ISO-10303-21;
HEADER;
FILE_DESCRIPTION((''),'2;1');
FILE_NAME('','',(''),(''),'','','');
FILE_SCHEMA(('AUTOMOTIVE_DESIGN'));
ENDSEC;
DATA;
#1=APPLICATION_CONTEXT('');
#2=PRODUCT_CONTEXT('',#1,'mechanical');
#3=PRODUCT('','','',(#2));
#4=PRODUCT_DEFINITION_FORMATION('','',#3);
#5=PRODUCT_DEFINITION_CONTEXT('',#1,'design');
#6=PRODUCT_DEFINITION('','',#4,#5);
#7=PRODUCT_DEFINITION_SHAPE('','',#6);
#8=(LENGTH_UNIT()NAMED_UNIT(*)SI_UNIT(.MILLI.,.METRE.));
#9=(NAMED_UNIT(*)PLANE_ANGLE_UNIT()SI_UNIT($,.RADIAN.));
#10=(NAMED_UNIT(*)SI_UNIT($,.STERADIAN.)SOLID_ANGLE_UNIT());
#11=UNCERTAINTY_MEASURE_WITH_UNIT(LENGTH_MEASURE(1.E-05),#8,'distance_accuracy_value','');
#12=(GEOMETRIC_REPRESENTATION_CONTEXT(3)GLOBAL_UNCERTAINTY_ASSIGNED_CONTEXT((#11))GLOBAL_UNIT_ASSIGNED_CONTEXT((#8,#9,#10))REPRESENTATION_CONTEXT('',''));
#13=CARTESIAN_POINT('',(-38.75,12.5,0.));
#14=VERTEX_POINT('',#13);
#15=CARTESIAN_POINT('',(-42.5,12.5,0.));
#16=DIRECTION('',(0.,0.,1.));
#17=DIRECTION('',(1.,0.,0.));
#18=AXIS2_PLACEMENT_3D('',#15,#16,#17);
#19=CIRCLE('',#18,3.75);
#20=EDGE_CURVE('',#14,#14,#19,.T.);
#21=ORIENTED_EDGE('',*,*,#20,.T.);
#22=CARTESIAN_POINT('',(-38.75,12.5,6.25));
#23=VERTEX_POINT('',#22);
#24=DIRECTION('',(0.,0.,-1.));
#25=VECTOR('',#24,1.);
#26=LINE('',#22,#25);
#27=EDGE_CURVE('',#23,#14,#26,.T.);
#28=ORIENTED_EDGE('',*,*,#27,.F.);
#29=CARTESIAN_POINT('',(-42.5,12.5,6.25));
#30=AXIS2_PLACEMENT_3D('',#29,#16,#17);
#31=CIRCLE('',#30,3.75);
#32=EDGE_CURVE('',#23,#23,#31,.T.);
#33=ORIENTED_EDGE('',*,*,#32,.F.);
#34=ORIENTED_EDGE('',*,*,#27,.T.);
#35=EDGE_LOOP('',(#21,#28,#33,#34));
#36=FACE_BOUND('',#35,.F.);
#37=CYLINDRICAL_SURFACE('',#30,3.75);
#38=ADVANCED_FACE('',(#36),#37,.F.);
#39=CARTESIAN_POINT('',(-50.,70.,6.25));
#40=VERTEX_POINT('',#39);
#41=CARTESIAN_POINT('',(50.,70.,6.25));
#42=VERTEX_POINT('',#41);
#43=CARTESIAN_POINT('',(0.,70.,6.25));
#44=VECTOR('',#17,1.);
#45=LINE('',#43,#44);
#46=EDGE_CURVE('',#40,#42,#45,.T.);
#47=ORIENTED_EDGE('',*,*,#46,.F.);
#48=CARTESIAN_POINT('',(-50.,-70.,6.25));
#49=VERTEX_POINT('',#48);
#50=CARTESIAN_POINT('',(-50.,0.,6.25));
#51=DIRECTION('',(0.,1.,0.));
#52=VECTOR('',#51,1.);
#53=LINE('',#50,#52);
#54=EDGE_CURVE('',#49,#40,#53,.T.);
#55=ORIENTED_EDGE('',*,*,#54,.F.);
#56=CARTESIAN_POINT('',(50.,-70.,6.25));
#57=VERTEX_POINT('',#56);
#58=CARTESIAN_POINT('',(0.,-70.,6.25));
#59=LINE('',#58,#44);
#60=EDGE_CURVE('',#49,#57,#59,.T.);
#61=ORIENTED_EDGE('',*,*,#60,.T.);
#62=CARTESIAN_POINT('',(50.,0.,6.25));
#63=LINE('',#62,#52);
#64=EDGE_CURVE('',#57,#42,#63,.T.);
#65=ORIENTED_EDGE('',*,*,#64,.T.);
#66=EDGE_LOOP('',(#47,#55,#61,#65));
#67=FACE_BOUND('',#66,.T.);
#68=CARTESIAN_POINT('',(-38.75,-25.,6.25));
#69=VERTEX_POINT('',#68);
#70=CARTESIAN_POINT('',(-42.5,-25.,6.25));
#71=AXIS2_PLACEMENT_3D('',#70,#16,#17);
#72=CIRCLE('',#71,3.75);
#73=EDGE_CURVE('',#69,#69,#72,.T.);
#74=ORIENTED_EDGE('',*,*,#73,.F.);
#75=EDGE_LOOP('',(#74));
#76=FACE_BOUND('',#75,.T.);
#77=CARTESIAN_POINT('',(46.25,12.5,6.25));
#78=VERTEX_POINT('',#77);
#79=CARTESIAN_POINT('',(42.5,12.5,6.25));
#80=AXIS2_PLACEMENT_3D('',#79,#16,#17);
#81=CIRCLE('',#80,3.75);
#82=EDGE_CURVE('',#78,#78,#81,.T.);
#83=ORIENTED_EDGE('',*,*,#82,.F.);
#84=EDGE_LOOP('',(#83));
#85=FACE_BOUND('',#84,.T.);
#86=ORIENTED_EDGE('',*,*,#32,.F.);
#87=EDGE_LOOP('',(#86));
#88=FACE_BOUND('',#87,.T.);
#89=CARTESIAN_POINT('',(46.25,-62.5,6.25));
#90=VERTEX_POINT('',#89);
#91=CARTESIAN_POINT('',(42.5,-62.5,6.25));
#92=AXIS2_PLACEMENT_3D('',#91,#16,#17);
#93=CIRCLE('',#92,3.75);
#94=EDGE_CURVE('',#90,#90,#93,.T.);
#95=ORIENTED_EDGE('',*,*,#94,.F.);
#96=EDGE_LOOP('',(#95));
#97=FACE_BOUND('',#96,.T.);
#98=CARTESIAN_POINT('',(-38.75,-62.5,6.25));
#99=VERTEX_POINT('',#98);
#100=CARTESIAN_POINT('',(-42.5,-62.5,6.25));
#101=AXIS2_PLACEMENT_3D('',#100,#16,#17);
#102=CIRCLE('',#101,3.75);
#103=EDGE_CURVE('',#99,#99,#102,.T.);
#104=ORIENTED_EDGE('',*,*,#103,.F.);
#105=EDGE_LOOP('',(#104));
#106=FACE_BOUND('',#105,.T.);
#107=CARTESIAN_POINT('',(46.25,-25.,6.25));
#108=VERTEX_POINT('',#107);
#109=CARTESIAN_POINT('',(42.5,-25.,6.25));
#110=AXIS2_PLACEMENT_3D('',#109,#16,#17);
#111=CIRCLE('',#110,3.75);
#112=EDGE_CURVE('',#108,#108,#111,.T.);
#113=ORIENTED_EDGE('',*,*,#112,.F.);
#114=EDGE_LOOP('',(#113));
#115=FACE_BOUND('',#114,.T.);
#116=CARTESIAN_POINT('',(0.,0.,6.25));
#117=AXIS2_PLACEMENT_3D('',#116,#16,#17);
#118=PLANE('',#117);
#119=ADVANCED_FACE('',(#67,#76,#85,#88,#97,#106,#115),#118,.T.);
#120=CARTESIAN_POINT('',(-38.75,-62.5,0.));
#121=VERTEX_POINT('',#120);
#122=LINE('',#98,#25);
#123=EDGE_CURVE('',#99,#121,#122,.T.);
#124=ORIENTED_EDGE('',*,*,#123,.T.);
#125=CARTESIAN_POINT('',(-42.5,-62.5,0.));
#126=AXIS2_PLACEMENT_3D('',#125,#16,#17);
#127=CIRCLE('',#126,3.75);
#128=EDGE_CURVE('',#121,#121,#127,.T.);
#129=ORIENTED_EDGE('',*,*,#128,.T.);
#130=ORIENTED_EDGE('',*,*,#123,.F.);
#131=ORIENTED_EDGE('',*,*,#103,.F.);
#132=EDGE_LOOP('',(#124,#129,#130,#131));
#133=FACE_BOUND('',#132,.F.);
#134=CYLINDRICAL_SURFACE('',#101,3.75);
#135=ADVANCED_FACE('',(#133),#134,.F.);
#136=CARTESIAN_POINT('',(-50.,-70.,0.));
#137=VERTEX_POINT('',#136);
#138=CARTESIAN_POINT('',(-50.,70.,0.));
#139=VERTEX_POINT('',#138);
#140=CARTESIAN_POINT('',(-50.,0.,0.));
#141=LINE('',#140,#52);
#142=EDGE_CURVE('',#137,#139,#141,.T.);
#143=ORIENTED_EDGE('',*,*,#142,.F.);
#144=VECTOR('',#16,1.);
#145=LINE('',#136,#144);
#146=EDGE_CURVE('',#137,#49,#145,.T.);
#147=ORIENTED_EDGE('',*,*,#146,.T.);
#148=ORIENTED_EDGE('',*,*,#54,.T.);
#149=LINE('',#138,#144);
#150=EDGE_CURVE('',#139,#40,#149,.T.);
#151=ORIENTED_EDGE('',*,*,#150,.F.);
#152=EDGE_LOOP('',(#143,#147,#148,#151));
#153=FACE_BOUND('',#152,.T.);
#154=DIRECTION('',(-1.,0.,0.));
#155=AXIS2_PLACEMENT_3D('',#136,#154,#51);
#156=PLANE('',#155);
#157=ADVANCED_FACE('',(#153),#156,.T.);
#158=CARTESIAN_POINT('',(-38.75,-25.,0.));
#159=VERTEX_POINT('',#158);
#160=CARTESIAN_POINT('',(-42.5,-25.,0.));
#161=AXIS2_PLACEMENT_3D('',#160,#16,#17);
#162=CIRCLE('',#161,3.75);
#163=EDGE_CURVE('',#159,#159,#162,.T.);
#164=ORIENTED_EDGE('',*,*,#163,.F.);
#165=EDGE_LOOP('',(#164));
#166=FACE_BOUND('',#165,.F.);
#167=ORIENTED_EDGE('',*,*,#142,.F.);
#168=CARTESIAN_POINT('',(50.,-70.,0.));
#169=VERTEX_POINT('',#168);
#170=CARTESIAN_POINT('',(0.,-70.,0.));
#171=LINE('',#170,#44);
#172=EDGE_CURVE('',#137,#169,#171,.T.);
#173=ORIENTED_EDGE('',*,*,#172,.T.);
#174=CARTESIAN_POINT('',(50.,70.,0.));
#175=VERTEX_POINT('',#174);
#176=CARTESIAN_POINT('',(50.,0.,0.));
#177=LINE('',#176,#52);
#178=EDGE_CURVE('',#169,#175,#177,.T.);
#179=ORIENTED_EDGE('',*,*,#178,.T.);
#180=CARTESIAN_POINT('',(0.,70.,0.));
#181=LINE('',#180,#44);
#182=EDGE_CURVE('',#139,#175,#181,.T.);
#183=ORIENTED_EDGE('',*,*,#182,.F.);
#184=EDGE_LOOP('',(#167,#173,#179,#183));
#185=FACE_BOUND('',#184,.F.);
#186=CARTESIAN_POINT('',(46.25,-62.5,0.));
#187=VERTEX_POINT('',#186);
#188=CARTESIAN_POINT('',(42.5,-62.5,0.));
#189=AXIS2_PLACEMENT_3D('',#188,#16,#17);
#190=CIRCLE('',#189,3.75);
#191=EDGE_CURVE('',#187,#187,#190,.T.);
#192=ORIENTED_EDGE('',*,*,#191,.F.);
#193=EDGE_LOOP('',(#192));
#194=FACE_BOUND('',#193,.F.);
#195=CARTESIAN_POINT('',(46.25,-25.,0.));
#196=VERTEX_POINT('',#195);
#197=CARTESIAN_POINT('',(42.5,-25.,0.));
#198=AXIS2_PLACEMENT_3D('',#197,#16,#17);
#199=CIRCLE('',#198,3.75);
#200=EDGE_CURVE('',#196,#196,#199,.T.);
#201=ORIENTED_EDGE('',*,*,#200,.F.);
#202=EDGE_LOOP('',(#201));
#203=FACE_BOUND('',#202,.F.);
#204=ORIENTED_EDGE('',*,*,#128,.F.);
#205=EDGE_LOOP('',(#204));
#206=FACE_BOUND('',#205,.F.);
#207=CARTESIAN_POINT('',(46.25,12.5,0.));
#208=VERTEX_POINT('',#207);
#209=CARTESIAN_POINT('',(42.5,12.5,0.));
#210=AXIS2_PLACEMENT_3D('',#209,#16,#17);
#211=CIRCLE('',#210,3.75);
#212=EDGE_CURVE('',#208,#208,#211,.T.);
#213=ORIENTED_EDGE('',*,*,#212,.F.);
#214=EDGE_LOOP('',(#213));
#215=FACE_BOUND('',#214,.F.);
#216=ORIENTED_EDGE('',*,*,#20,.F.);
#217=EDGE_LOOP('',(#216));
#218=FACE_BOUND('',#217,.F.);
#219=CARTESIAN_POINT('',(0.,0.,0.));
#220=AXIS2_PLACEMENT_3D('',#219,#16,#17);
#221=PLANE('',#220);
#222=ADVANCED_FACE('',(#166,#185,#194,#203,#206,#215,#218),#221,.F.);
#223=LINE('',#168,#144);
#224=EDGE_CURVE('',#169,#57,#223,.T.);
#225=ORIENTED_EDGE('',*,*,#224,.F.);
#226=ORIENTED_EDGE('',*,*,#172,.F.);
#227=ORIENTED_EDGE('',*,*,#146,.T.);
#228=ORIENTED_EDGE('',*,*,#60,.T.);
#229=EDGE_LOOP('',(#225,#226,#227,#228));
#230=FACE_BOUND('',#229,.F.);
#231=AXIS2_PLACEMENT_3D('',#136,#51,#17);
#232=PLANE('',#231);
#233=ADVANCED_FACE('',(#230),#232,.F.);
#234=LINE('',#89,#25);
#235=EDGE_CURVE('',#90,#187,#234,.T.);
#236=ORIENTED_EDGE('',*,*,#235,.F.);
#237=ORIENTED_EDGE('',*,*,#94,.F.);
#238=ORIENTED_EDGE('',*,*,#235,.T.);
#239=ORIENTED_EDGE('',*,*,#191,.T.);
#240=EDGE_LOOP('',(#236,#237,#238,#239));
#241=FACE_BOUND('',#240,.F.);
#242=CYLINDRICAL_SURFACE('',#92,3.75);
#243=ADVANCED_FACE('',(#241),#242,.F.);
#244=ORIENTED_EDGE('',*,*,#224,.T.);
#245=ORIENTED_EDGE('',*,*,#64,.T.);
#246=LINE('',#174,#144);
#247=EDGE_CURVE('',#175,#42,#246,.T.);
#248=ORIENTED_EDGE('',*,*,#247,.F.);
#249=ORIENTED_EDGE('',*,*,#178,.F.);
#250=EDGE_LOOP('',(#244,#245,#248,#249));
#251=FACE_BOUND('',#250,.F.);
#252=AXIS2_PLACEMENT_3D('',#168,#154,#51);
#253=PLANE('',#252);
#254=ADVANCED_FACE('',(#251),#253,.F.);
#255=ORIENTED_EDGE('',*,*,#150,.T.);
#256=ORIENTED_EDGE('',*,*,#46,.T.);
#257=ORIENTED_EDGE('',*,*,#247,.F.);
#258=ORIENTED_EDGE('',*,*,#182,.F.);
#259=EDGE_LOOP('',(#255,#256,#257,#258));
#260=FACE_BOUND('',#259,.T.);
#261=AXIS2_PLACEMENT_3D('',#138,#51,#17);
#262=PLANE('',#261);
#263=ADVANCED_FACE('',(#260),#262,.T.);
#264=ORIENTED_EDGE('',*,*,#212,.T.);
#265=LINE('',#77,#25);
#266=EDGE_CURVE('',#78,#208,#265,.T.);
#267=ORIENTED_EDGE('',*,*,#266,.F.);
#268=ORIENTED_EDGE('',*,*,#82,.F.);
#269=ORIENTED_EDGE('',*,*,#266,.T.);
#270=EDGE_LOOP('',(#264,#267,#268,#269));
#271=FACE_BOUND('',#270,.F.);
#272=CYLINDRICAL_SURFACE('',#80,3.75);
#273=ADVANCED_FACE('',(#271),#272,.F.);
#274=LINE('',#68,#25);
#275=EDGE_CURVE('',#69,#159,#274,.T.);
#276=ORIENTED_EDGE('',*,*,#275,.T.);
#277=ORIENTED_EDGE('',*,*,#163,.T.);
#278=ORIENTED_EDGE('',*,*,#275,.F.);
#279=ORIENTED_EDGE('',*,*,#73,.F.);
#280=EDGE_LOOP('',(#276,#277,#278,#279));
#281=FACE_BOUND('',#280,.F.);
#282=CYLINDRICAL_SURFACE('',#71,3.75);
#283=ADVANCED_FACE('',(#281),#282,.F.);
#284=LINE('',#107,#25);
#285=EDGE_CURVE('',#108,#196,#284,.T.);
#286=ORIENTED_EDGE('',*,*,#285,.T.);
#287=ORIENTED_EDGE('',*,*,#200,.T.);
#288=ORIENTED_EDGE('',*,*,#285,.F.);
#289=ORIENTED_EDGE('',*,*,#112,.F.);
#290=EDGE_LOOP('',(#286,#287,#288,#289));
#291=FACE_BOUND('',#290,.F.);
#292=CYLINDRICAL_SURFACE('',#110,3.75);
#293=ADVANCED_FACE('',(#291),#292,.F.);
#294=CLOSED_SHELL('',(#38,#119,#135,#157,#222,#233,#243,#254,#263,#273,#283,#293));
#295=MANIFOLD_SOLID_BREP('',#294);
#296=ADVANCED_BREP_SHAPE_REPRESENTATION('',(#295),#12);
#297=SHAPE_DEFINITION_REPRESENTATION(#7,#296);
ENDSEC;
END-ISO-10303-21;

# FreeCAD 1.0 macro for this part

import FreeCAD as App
import Part
import Sketcher
from FreeCAD import Vector
Q = App.Units.Quantity


def add_polygon(sketch, points):
    """Adds a closed chain of lines whose ends are joined by coincident constraints."""
    first, n = sketch.GeometryCount, len(points)
    for a, b in zip(points, points[1:] + points[:1]):
        sketch.addGeometry(Part.LineSegment(App.Vector(*a, 0), App.Vector(*b, 0)), False)
    for i in range(n):
        sketch.addConstraint(Sketcher.Constraint("Coincident", first + i, 2, first + (i + 1) % n, 1))

doc = App.newDocument("Part")
body = doc.addObject("PartDesign::Body", "Body")

sketch1 = body.newObject("Sketcher::SketchObject", "Sketch")
sketch1.AttachmentSupport = (doc.getObject("XY_Plane"), [""])
sketch1.MapMode = "FlatFace"
add_polygon(sketch1, [(-50, 70), (-50, -70), (50, -70), (50, 70)])
sketch1.addConstraint(Sketcher.Constraint("Vertical", 0))
sketch1.addConstraint(Sketcher.Constraint("Horizontal", 1))
sketch1.addConstraint(Sketcher.Constraint("Vertical", 2))
sketch1.addConstraint(Sketcher.Constraint("Horizontal", 3))
sketch1.addConstraint(Sketcher.Constraint("Symmetric", 0, 2, 2, 2, -1, 1))
sketch1.addConstraint(Sketcher.Constraint("DistanceX", 1, 1, 1, 2, Q("100 mm")))
sketch1.addConstraint(Sketcher.Constraint("DistanceY", 0, 2, 0, 1, Q("140 mm")))
pad1 = body.newObject("PartDesign::Pad", "Pad")
pad1.Profile = sketch1
pad1.Length = 6.25

sketch2 = body.newObject("Sketcher::SketchObject", "Sketch001")
sketch2.AttachmentSupport = (doc.getObject("XY_Plane"), [""])
sketch2.MapMode = "FlatFace"
sketch2.AttachmentOffset = App.Placement(Vector(0, 0, 6.25), App.Rotation())
sketch2.addGeometry(Part.Circle(Vector(-42.5, -62.5, 0), Vector(0, 0, 1), 3.8), False)
sketch2.addGeometry(Part.Circle(Vector(-42.5, -25, 0), Vector(0, 0, 1), 3.8), False)
sketch2.addGeometry(Part.Circle(Vector(-42.5, 12.5, 0), Vector(0, 0, 1), 3.8), False)
sketch2.addGeometry(Part.Circle(Vector(42.5, 12.5, 0), Vector(0, 0, 1), 3.8), False)
sketch2.addGeometry(Part.Circle(Vector(42.5, -62.5, 0), Vector(0, 0, 1), 3.8), False)
sketch2.addGeometry(Part.Circle(Vector(42.5, -25, 0), Vector(0, 0, 1), 3.8), False)
sketch2.addConstraint(Sketcher.Constraint("Equal", 0, 1))
sketch2.addConstraint(Sketcher.Constraint("Equal", 1, 2))
sketch2.addConstraint(Sketcher.Constraint("Equal", 2, 3))
sketch2.addConstraint(Sketcher.Constraint("Equal", 3, 4))
sketch2.addConstraint(Sketcher.Constraint("Equal", 4, 5))
sketch2.addConstraint(Sketcher.Constraint("Symmetric", 2, 3, 3, 3, -2))
sketch2.addConstraint(Sketcher.Constraint("Symmetric", 0, 3, 4, 3, -2))
sketch2.addConstraint(Sketcher.Constraint("Symmetric", 1, 3, 5, 3, -2))
sketch2.addConstraint(Sketcher.Constraint("Vertical", 0, 3, 1, 3))
sketch2.addConstraint(Sketcher.Constraint("Vertical", 1, 3, 2, 3))
sketch2.addConstraint(Sketcher.Constraint("Diameter", 0, Q("7.5 mm")))
sketch2.addConstraint(Sketcher.Constraint("DistanceY", 1, 3, -1, 1, Q("25 mm")))
sketch2.addConstraint(Sketcher.Constraint("DistanceY", 0, 3, 2, 3, Q("75 mm")))
sketch2.addConstraint(Sketcher.Constraint("DistanceX", 2, 3, 3, 3, Q("85 mm")))
sketch2.addConstraint(Sketcher.Constraint("DistanceY", 0, 3, -1, 1, Q("62.5 mm")))
pocket1 = body.newObject("PartDesign::Pocket", "Pocket")
pocket1.Profile = sketch2
pocket1.Length = 25

doc.recompute()
